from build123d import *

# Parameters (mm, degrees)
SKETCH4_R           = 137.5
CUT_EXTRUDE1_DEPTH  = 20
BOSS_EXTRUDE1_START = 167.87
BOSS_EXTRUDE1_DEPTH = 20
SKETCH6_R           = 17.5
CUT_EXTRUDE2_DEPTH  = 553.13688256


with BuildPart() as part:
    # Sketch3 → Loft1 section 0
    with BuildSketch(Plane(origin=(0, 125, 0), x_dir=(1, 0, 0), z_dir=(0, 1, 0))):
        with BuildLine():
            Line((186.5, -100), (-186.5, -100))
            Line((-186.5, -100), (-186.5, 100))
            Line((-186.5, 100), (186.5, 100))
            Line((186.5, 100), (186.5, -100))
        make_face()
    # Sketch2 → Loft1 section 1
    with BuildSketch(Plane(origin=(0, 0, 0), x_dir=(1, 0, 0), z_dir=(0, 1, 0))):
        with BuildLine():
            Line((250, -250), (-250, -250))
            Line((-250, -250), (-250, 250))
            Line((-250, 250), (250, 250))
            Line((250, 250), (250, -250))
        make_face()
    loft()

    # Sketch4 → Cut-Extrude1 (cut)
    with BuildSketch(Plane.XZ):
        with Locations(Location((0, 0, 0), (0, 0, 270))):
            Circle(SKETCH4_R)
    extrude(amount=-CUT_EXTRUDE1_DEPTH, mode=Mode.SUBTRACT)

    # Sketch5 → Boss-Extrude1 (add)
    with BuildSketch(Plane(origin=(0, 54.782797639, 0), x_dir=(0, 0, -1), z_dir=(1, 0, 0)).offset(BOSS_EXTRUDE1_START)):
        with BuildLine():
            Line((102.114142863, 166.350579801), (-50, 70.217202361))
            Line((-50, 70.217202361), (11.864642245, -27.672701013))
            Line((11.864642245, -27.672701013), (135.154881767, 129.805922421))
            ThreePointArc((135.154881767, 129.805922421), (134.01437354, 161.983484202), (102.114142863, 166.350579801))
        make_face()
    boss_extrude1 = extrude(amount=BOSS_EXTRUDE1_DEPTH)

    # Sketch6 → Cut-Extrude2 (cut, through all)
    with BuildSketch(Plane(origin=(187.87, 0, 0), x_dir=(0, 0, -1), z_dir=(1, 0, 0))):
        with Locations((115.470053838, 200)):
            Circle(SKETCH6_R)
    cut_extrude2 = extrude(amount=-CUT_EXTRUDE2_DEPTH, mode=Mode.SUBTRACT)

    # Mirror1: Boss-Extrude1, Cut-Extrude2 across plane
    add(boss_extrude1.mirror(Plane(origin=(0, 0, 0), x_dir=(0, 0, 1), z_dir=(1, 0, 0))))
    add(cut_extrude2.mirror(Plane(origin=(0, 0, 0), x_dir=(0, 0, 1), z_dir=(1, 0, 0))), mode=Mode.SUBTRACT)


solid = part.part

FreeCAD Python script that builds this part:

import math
import FreeCAD as App
import Part
import Sketcher
from FreeCAD import Vector

doc = App.newDocument("Part")
body = doc.addObject("PartDesign::Body", "Body")

sketch1 = body.newObject("Sketcher::SketchObject", "Sketch")
sketch1.AttachmentSupport = (doc.getObject("XZ_Plane"), [""])
sketch1.MapMode = "FlatFace"
sketch1.AttachmentOffset = App.Placement(Vector(0, 0, -125), App.Rotation())
sketch1.addGeometry([
    Part.LineSegment(Vector(-186.5, 100, 0), Vector(186.5, 100, 0)),
    Part.LineSegment(Vector(186.5, 100, 0), Vector(186.5, -100, 0)),
    Part.LineSegment(Vector(186.5, -100, 0), Vector(-186.5, -100, 0)),
    Part.LineSegment(Vector(-186.5, -100, 0), Vector(-186.5, 100, 0)),
], False)
sketch1.addConstraint([
    Sketcher.Constraint("Coincident", 0, 2, 1, 1),
    Sketcher.Constraint("Coincident", 1, 2, 2, 1),
    Sketcher.Constraint("Coincident", 2, 2, 3, 1),
    Sketcher.Constraint("Coincident", 3, 2, 0, 1),
    Sketcher.Constraint("Horizontal", 0),
    Sketcher.Constraint("Vertical", 1),
    Sketcher.Constraint("Horizontal", 2),
    Sketcher.Constraint("Vertical", 3),
    Sketcher.Constraint("Symmetric", 0, 2, 2, 2, -1, 1),
    Sketcher.Constraint("DistanceX", 0, 1, 0, 2, 373.0),
    Sketcher.Constraint("DistanceY", 1, 2, 1, 1, 200.0),
])

sketch2 = body.newObject("Sketcher::SketchObject", "Sketch001")
sketch2.AttachmentSupport = (doc.getObject("XZ_Plane"), [""])
sketch2.MapMode = "FlatFace"
sketch2.addGeometry([
    Part.LineSegment(Vector(-250, 250, 0), Vector(250, 250, 0)),
    Part.LineSegment(Vector(250, 250, 0), Vector(250, -250, 0)),
    Part.LineSegment(Vector(250, -250, 0), Vector(-250, -250, 0)),
    Part.LineSegment(Vector(-250, -250, 0), Vector(-250, 250, 0)),
], False)
sketch2.addConstraint([
    Sketcher.Constraint("Coincident", 0, 2, 1, 1),
    Sketcher.Constraint("Coincident", 1, 2, 2, 1),
    Sketcher.Constraint("Coincident", 2, 2, 3, 1),
    Sketcher.Constraint("Coincident", 3, 2, 0, 1),
    Sketcher.Constraint("Horizontal", 0),
    Sketcher.Constraint("Vertical", 1),
    Sketcher.Constraint("Horizontal", 2),
    Sketcher.Constraint("Vertical", 3),
    Sketcher.Constraint("Symmetric", 0, 2, 2, 2, -1, 1),
    Sketcher.Constraint("Equal", 2, 1),
    Sketcher.Constraint("DistanceX", 0, 1, 0, 2, 500.0),
])

additiveloft = body.newObject("PartDesign::AdditiveLoft", "AdditiveLoft")
additiveloft.Profile = sketch1
additiveloft.Sections = [sketch2]

sketch3 = body.newObject("Sketcher::SketchObject", "Sketch002")
sketch3.AttachmentSupport = (doc.getObject("XZ_Plane"), [""])
sketch3.MapMode = "FlatFace"
sketch3.addGeometry(Part.Circle(Vector(0, 0, 0), Vector(0, 0, 1), 137.5), False)
sketch3.addConstraint([
    Sketcher.Constraint("Coincident", 0, 3, -1, 1),
    Sketcher.Constraint("Diameter", 0, 275.0),
])
pocket1 = body.newObject("PartDesign::Pocket", "Pocket")
pocket1.Profile = sketch3
pocket1.Length = 20

sketch4 = body.newObject("Sketcher::SketchObject", "Sketch003")
sketch4.AttachmentSupport = (doc.getObject("YZ_Plane"), [""])
sketch4.MapMode = "FlatFace"
sketch4.AttachmentOffset = App.Placement(Vector(0, 0, 167.87), App.Rotation())
sketch4.addGeometry([
    Part.LineSegment(Vector(221.133377, -102.114143, 0), Vector(125, 50, 0)),
    Part.LineSegment(Vector(125, 50, 0), Vector(27.110097, -11.864642, 0)),
    Part.LineSegment(Vector(27.110097, -11.864642, 0), Vector(184.58872, -135.154882, 0)),
    Part.ArcOfCircle(Part.Circle(Vector(200, -115.470054, 0), Vector(0, 0, 1), 25), math.radians(-128.057443), math.radians(32.292143)),
], False)
sketch4.addConstraint([
    Sketcher.Constraint("Coincident", 0, 2, 1, 1),
    Sketcher.Constraint("Coincident", 1, 2, 2, 1),
    Sketcher.Constraint("Tangent", 2, 2, 3, 1),
    Sketcher.Constraint("Tangent", 3, 2, 0, 1),
    Sketcher.Constraint("Perpendicular", 0, 1),
    Sketcher.Constraint("Radius", 3, 25.0),
    Sketcher.Constraint("Distance", 2, 200.0),
    Sketcher.Constraint("DistanceX", -1, 1, 3, 3, 200.0),
    Sketcher.Constraint("DistanceX", -1, 1, 0, 2, 125.0),
    Sketcher.Constraint("DistanceY", -1, 1, 0, 2, 50.0),
    Sketcher.Constraint("DistanceY", 3, 2, 1, 2, 90.249501),
])
pad1 = body.newObject("PartDesign::Pad", "Pad")
pad1.Profile = sketch4
pad1.Length = 20

sketch5 = body.newObject("Sketcher::SketchObject", "Sketch004")
sketch5.AttachmentSupport = (doc.getObject("YZ_Plane"), [""])
sketch5.MapMode = "FlatFace"
sketch5.AttachmentOffset = App.Placement(Vector(0, 0, 187.87), App.Rotation())
sketch5.addGeometry(Part.Circle(Vector(200, -115.470054, 0), Vector(0, 0, 1), 17.5), False)
sketch5.addConstraint([
    Sketcher.Constraint("Diameter", 0, 35.0),
    Sketcher.Constraint("DistanceX", -1, 1, 0, 3, 200.0),
    Sketcher.Constraint("DistanceY", 0, 3, -1, 1, 115.470054),
])
pocket2 = body.newObject("PartDesign::Pocket", "Pocket001")
pocket2.Profile = sketch5
pocket2.Type = "ThroughAll"
doc.recompute()

mirrored = body.newObject("PartDesign::Mirrored", "Mirrored")
mirrored.Originals = [pad1, pocket2]
mirrored.MirrorPlane = (doc.getObject("YZ_Plane"), [""])
body.Tip = mirrored

doc.recompute()
